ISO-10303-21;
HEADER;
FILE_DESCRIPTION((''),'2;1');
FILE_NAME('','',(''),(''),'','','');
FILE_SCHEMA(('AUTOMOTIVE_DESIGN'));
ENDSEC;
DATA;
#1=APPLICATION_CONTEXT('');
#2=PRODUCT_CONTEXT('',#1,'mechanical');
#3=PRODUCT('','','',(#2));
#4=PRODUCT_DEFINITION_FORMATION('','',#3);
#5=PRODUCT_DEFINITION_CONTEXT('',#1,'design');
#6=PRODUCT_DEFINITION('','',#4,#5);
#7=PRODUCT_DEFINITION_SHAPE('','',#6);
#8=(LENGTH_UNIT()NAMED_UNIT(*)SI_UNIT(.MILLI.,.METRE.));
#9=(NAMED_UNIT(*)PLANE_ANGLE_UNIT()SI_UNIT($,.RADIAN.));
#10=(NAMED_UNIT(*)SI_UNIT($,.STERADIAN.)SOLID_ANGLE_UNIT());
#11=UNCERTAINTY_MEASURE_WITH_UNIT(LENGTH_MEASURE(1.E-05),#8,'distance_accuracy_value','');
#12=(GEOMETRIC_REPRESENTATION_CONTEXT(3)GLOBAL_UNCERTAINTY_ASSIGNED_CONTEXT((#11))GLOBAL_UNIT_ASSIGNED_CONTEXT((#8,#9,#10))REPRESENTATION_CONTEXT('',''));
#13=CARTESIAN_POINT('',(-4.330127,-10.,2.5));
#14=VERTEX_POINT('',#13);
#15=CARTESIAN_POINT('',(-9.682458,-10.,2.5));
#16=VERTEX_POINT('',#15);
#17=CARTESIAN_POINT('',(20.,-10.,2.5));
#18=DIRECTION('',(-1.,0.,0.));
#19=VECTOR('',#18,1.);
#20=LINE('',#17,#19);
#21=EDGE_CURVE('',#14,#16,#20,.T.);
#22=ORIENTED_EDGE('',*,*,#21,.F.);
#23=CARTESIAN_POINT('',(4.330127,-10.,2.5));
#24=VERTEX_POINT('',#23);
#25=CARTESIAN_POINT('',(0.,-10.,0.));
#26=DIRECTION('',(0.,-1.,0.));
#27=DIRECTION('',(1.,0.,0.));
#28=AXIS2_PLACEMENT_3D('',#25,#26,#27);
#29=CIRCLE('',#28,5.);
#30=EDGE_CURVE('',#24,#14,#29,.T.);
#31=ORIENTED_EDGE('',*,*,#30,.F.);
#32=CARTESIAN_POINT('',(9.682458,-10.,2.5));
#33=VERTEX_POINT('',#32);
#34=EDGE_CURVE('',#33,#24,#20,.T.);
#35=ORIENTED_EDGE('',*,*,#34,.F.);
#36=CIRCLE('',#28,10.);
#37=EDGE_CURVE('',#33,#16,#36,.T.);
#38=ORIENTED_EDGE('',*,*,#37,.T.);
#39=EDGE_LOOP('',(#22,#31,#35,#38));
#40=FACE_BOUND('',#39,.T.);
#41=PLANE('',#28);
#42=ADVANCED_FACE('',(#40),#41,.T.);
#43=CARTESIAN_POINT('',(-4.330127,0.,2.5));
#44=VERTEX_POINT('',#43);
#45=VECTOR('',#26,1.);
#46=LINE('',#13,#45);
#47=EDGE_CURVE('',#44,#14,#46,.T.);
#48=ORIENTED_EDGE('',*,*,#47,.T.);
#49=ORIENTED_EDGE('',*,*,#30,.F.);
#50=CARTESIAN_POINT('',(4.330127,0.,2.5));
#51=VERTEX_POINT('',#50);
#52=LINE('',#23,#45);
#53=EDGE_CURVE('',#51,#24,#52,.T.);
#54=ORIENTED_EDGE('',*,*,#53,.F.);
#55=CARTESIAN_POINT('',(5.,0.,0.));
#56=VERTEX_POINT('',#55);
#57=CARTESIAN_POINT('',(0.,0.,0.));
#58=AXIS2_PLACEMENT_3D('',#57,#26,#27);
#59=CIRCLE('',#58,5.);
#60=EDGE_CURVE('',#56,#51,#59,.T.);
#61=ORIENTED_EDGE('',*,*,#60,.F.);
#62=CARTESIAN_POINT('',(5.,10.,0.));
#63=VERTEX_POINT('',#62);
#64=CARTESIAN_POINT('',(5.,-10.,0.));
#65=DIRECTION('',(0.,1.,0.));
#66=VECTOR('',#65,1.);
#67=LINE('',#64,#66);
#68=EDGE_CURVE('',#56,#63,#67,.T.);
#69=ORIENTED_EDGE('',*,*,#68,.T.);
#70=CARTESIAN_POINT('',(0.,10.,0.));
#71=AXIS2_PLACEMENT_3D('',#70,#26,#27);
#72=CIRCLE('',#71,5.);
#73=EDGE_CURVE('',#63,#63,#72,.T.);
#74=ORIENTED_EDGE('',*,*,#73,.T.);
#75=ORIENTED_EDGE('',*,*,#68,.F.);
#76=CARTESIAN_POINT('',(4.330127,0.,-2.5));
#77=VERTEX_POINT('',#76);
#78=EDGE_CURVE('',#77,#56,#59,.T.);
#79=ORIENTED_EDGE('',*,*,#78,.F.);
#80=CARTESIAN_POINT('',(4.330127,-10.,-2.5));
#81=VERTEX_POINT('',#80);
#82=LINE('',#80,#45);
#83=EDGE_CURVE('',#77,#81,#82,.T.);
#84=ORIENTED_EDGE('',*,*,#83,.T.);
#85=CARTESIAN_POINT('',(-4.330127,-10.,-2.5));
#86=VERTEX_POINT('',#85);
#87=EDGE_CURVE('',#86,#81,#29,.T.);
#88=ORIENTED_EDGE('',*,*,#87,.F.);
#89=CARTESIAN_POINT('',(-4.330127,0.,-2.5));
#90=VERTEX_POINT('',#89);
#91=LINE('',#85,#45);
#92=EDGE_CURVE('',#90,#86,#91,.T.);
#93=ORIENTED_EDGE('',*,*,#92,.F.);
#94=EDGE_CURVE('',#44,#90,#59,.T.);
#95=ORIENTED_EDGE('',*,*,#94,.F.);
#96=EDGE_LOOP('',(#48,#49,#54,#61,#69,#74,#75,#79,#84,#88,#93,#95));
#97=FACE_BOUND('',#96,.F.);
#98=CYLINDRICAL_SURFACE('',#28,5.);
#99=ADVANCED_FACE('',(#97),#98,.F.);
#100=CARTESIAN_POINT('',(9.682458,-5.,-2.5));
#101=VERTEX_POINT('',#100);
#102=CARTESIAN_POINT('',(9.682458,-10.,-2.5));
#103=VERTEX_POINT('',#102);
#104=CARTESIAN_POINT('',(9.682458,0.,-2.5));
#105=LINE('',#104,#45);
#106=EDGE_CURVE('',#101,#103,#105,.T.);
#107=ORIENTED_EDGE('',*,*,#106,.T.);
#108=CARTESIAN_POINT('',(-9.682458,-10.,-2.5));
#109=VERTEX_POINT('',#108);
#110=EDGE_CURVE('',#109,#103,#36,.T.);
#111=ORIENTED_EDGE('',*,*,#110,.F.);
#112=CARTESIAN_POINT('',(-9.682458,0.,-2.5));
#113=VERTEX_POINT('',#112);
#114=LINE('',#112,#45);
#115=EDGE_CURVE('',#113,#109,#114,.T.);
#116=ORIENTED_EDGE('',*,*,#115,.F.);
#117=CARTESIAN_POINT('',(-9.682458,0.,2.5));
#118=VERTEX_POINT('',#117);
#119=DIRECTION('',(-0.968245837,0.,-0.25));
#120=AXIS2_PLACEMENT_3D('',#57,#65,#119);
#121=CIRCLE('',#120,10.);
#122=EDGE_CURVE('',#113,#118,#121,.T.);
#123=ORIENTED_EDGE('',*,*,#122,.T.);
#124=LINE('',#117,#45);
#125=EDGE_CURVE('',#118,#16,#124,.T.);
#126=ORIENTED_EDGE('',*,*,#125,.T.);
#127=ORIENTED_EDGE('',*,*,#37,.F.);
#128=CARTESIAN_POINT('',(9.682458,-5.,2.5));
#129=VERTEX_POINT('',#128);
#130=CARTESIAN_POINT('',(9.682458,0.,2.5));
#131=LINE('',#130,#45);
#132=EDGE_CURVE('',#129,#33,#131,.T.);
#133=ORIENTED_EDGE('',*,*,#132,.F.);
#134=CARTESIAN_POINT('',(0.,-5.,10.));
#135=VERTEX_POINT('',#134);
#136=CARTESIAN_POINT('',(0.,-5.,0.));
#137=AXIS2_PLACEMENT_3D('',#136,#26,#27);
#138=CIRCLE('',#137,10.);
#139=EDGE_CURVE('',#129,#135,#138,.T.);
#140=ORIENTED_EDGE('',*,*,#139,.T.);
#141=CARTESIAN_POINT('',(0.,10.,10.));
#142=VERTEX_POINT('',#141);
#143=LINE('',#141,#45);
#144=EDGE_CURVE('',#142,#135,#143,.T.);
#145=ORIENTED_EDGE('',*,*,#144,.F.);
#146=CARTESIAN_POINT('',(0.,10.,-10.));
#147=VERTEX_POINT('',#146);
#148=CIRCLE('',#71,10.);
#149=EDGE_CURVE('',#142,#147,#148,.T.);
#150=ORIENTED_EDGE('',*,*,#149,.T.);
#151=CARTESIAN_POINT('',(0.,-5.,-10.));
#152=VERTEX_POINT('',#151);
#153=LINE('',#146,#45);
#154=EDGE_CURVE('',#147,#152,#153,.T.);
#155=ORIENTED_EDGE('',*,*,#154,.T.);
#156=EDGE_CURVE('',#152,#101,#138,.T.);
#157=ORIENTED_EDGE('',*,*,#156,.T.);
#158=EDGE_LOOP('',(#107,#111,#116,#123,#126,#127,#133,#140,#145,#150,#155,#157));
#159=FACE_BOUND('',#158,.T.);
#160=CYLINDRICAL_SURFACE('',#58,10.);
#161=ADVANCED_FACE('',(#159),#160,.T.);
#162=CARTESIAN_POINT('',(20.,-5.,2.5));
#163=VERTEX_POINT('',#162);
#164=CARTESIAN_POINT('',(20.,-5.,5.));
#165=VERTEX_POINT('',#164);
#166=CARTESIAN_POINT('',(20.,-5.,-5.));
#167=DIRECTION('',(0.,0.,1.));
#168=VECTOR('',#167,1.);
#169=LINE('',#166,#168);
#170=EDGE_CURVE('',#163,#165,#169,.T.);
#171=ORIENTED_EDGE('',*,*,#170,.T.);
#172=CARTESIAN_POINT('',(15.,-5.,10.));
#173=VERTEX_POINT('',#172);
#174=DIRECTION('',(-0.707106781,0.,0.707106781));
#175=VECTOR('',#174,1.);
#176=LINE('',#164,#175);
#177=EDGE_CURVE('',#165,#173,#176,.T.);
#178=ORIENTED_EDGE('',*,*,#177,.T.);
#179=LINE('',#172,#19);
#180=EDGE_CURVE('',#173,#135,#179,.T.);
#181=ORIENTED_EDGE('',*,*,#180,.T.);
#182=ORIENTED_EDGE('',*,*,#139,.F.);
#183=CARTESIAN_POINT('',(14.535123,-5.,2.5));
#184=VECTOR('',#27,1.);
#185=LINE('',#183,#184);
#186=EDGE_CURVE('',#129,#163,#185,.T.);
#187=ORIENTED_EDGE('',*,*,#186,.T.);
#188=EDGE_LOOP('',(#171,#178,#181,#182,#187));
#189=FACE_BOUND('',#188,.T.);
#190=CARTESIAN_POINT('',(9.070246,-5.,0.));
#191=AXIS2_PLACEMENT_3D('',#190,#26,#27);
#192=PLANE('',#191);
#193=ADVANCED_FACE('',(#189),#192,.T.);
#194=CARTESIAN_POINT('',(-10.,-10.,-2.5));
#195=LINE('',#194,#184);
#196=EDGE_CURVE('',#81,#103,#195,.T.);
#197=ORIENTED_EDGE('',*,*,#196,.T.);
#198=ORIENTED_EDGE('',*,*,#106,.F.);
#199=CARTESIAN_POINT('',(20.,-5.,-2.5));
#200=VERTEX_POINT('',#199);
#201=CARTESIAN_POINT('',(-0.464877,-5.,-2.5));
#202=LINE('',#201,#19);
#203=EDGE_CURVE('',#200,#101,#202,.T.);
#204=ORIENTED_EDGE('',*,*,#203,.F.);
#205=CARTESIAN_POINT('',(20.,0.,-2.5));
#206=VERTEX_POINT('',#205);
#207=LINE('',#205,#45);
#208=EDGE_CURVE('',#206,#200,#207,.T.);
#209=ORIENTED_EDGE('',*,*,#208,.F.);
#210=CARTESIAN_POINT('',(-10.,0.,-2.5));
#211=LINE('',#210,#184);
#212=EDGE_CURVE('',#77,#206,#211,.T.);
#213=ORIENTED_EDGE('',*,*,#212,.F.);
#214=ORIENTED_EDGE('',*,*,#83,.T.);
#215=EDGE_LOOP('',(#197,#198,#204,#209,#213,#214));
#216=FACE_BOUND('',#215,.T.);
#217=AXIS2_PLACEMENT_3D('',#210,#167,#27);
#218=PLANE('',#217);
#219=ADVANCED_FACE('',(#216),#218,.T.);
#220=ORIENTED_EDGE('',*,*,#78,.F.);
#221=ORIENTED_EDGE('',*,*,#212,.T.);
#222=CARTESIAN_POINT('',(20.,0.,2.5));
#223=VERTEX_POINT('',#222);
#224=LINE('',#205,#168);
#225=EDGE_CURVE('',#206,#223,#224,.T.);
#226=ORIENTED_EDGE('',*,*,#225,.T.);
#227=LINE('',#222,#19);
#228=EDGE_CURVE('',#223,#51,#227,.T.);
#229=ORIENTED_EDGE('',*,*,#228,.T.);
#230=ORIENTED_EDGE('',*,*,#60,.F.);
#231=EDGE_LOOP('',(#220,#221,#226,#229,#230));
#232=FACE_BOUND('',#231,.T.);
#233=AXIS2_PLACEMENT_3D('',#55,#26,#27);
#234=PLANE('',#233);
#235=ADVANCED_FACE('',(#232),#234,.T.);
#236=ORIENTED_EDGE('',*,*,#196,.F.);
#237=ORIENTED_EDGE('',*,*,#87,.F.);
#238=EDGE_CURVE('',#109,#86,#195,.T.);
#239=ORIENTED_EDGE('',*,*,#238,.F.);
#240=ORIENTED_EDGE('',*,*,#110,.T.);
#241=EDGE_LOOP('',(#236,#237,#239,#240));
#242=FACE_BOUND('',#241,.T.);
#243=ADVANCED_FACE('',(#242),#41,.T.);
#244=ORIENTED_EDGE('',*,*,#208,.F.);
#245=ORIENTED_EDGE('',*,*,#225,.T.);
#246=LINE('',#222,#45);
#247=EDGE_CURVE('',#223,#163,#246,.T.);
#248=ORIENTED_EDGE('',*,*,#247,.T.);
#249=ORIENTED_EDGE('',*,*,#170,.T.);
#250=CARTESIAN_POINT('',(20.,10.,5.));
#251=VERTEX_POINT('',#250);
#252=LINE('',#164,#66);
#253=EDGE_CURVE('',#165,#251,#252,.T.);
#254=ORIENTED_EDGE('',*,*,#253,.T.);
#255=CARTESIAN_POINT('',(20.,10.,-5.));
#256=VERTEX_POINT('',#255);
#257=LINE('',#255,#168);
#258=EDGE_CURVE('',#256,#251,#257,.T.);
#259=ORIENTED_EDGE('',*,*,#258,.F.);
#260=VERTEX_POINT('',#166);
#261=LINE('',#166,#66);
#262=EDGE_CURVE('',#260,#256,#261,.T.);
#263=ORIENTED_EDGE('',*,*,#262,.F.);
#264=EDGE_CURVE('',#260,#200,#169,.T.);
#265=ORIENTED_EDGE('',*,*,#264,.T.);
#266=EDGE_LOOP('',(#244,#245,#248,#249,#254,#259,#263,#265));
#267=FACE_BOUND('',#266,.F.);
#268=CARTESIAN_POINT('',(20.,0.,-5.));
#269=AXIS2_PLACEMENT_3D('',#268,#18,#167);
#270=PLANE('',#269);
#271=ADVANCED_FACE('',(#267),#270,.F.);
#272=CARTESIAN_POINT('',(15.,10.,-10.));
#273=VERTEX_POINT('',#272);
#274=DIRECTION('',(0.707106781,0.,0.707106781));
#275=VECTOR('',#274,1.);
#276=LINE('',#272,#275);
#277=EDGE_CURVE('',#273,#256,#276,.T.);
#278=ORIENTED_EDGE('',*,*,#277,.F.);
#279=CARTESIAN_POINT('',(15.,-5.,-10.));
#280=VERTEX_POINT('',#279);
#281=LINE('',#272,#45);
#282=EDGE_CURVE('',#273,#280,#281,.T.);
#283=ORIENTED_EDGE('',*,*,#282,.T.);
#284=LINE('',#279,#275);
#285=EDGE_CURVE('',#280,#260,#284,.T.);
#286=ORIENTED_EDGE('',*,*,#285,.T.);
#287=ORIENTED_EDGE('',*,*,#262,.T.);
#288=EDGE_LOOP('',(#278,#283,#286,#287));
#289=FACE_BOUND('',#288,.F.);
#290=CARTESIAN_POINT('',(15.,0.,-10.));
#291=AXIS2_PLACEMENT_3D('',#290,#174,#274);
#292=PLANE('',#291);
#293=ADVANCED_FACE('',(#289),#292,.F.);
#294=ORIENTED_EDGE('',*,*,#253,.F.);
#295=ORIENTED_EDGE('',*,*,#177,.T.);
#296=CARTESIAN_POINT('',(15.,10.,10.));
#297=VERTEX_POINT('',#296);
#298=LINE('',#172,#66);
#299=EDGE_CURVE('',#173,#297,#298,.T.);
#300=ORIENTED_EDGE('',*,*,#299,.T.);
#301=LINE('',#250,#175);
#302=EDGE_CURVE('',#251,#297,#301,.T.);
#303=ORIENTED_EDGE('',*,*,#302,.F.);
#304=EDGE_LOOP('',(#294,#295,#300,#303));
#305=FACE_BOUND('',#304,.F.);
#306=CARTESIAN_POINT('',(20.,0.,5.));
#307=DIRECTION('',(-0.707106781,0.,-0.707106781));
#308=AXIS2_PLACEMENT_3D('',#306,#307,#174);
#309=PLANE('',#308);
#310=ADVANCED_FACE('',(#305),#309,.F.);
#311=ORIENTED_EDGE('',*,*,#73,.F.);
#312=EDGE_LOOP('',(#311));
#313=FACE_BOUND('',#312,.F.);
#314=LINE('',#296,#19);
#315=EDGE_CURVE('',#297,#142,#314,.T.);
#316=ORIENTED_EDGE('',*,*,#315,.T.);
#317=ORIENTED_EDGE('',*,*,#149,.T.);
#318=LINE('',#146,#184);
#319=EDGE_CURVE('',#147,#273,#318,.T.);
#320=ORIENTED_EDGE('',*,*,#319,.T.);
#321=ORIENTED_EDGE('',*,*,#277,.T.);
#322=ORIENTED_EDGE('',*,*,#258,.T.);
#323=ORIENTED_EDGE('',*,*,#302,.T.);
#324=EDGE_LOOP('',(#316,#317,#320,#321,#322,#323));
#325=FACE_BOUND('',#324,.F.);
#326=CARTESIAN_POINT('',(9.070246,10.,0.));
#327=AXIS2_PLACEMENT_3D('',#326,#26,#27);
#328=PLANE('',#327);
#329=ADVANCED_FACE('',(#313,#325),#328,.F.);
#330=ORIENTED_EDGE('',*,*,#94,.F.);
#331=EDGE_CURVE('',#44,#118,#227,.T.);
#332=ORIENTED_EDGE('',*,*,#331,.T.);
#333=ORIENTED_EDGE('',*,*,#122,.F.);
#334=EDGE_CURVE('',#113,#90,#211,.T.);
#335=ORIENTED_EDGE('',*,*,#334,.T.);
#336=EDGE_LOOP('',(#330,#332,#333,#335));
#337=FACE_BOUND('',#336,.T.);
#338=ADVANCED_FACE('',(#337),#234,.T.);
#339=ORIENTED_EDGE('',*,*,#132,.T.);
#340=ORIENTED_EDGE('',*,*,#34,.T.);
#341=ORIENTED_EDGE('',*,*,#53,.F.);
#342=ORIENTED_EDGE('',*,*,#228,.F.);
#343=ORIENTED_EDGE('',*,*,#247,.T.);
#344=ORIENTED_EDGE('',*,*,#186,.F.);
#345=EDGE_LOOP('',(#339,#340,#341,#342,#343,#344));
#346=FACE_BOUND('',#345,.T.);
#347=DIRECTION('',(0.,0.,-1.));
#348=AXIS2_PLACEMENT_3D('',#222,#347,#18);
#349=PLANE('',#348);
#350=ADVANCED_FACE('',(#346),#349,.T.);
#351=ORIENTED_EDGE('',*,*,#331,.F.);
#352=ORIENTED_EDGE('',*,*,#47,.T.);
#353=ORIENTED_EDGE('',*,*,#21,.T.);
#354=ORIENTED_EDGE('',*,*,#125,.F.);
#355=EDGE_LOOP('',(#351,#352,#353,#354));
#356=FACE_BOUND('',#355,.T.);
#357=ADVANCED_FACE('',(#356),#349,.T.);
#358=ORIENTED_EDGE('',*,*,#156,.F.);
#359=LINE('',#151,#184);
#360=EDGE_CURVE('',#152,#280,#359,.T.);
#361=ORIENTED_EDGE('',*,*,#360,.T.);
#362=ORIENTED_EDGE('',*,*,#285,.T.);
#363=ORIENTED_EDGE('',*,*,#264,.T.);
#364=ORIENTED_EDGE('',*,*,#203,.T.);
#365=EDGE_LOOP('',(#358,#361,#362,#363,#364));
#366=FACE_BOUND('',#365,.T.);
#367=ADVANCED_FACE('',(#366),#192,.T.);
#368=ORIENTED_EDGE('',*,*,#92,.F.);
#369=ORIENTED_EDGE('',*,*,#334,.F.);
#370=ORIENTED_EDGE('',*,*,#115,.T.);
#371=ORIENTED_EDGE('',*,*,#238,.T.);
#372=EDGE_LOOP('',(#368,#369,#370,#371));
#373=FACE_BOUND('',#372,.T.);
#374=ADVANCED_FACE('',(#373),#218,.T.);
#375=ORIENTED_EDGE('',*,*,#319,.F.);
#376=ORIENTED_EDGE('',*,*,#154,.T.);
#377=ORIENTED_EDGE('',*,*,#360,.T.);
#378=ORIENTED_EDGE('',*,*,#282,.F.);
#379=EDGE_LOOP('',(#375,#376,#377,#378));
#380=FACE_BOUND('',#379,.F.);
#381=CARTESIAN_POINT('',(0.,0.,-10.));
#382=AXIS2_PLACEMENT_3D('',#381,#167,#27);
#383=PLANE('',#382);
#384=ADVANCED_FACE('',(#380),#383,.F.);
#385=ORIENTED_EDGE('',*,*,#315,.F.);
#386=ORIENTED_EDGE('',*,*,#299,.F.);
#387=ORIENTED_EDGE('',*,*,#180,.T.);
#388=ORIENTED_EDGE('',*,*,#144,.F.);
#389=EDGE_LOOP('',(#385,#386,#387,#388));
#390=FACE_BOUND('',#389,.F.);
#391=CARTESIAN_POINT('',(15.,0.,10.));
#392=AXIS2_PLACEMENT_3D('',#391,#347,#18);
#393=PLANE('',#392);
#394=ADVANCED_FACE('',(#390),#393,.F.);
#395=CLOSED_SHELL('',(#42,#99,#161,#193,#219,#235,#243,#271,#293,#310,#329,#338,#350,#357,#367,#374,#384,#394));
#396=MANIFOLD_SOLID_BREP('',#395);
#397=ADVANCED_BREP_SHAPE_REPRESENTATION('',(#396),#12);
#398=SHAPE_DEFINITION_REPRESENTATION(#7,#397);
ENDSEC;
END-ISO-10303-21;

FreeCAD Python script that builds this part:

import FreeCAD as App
import Part
import Sketcher
from FreeCAD import Vector


def add_polygon(sketch, points):
    """Adds a closed chain of lines whose ends are joined by coincident constraints."""
    first, n = sketch.GeometryCount, len(points)
    for a, b in zip(points, points[1:] + points[:1]):
        sketch.addGeometry(Part.LineSegment(App.Vector(*a, 0), App.Vector(*b, 0)), False)
    for i in range(n):
        sketch.addConstraint(Sketcher.Constraint("Coincident", first + i, 2, first + (i + 1) % n, 1))

doc = App.newDocument("Part")
body = doc.addObject("PartDesign::Body", "Body")

sketch1 = body.newObject("Sketcher::SketchObject", "Sketch")
sketch1.AttachmentSupport = (doc.getObject("XZ_Plane"), [""])
sketch1.MapMode = "FlatFace"
sketch1.addGeometry(Part.Circle(Vector(0, 0, 0), Vector(0, 0, 1), 10), False)
sketch1.addConstraint([
    Sketcher.Constraint("Coincident", 0, 3, -1, 1),
    Sketcher.Constraint("Diameter", 0, 20.0),
])
pad1 = body.newObject("PartDesign::Pad", "Pad")
pad1.Profile = sketch1
pad1.Length = 20
pad1.Midplane = True

sketch2 = body.newObject("Sketcher::SketchObject", "Sketch001")
sketch2.AttachmentSupport = (doc.getObject("XZ_Plane"), [""])
sketch2.MapMode = "FlatFace"
add_polygon(sketch2, [(15, 10), (0, 10), (0, -10), (15, -10), (20, -5), (20, 5)])
sketch2.addConstraint([
    Sketcher.Constraint("Horizontal", 0),
    Sketcher.Constraint("Vertical", 1),
    Sketcher.Constraint("Horizontal", 2),
    Sketcher.Constraint("Vertical", 4),
    Sketcher.Constraint("Symmetric", 0, 2, 1, 2, -1, 1),
    Sketcher.Constraint("Perpendicular", 3, 5),
    Sketcher.Constraint("Vertical", 2, 2, 5, 2),
    Sketcher.Constraint("Equal", 3, 5),
    Sketcher.Constraint("DistanceX", 0, 2, 0, 1, 15.0),
    Sketcher.Constraint("DistanceY", 1, 2, 1, 1, 20.0),
    Sketcher.Constraint("DistanceY", 4, 1, 4, 2, 10.0),
])
pad2 = body.newObject("PartDesign::Pad", "Pad001")
pad2.Profile = sketch2
pad2.Type = "TwoLengths"
pad2.Length = 10
pad2.Length2 = 5
pad2.Reversed = True

sketch3 = body.newObject("Sketcher::SketchObject", "Sketch002")
sketch3.AttachmentSupport = (doc.getObject("XZ_Plane"), [""])
sketch3.MapMode = "FlatFace"
sketch3.AttachmentOffset = App.Placement(Vector(0, 0, 10), App.Rotation())
sketch3.addGeometry(Part.Circle(Vector(0, 0, 0), Vector(0, 0, 1), 5), False)
sketch3.addConstraint([
    Sketcher.Constraint("Coincident", 0, 3, -1, 1),
    Sketcher.Constraint("Diameter", 0, 10.0),
])
pocket1 = body.newObject("PartDesign::Pocket", "Pocket")
pocket1.Profile = sketch3
pocket1.Type = "ThroughAll"

sketch4 = body.newObject("Sketcher::SketchObject", "Sketch003")
sketch4.AttachmentSupport = (doc.getObject("XZ_Plane"), [""])
sketch4.MapMode = "FlatFace"
add_polygon(sketch4, [(-10, 2.5), (-10, -2.5), (20, -2.5), (20, 2.5)])
sketch4.addConstraint([
    Sketcher.Constraint("Vertical", 0),
    Sketcher.Constraint("Horizontal", 1),
    Sketcher.Constraint("Vertical", 2),
    Sketcher.Constraint("Horizontal", 3),
    Sketcher.Constraint("DistanceX", 1, 1, 1, 2, 30.0),
    Sketcher.Constraint("DistanceY", 0, 2, 0, 1, 5.0),
    Sketcher.Constraint("DistanceX", 0, 2, -1, 1, 10.0),
    Sketcher.Constraint("DistanceY", 0, 2, -1, 1, 2.5),
])
pocket2 = body.newObject("PartDesign::Pocket", "Pocket001")
pocket2.Profile = sketch4
pocket2.Length = 10
pocket2.Reversed = True

doc.recompute()
